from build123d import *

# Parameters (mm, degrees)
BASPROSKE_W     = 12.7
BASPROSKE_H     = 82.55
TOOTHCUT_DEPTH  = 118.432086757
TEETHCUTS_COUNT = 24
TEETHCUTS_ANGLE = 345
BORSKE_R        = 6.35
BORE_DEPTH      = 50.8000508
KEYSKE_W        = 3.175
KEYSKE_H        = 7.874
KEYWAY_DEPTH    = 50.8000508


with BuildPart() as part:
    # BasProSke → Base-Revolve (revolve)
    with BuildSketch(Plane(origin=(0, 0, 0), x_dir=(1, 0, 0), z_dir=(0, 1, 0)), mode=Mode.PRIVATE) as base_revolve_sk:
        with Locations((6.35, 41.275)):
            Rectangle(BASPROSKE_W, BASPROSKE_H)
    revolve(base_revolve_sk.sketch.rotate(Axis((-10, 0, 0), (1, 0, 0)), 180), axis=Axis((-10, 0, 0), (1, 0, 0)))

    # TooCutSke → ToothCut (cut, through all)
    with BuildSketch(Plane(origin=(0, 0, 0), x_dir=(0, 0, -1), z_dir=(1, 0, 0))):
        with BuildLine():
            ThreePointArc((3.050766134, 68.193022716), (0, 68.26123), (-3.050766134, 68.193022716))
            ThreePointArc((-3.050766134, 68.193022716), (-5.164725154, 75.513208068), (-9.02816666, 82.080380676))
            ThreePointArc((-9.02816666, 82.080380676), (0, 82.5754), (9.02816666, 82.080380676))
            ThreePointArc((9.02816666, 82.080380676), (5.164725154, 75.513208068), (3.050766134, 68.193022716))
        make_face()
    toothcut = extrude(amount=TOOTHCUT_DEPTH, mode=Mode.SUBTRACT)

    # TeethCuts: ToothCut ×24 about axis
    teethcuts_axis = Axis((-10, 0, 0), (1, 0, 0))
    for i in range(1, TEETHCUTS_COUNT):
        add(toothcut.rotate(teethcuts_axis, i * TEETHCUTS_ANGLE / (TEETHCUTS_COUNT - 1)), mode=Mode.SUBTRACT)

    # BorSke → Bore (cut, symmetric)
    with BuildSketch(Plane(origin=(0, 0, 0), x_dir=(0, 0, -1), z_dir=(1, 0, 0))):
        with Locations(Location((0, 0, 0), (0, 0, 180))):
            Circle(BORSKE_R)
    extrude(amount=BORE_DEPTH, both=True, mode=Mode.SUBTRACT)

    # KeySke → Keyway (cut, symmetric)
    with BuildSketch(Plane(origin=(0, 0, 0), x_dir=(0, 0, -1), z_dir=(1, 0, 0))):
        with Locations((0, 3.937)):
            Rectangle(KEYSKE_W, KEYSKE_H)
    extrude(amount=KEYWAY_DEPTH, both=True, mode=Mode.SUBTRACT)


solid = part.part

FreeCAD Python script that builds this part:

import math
import FreeCAD as App
import Part
import Sketcher
Q = App.Units.Quantity

doc = App.newDocument("Part")
params = doc.addObject("Spreadsheet::Sheet", "Params")
for row, (alias, value) in enumerate([
    ("sketch1_width", "0.5 in"),
    ("sketch1_height", "3.25 in"),
    ("revolution_angle", "360 deg"),
    ("sketch2_radius", "1.2 in"),
    ("sketch2_radius2", "3.251 in"),
    ("sketch3_diameter", "0.5 in"),
    ("pocket2_length", "101.600102 mm"),
    ("sketch4_width", "0.31 in"),
    ("sketch4_height", "0.125 in"),
    ("pocket3_length", "101.600102 mm"),
], start=1):
    params.set(f"A{row}", alias)
    params.set(f"B{row}", "=" + value)
    params.setAlias(f"B{row}", alias)

body = doc.addObject("PartDesign::Body", "Body")

# Sketch on XZ plane
sketch1 = doc.addObject("Sketcher::SketchObject", "Sketch")
body.addObject(sketch1)
sketch1.AttachmentSupport = (doc.XZ_Plane, [""])
sketch1.MapMode = "FlatFace"
sketch1.addGeometry([
    Part.LineSegment(App.Vector(0, -83, 0), App.Vector(0, 0, 0)),
    Part.LineSegment(App.Vector(0, 0, 0), App.Vector(13, 0, 0)),
    Part.LineSegment(App.Vector(13, 0, 0), App.Vector(13, -83, 0)),
    Part.LineSegment(App.Vector(13, -83, 0), App.Vector(0, -83, 0)),
], False)
sketch1.addConstraint([
    Sketcher.Constraint("Coincident", 0, 2, 1, 1),
    Sketcher.Constraint("Coincident", 1, 2, 2, 1),
    Sketcher.Constraint("Coincident", 2, 2, 3, 1),
    Sketcher.Constraint("Coincident", 3, 2, 0, 1),
    Sketcher.Constraint("Vertical", 0),
    Sketcher.Constraint("Horizontal", 1),
    Sketcher.Constraint("Vertical", 2),
    Sketcher.Constraint("Horizontal", 3),
    Sketcher.Constraint("Coincident", 0, 2, -1, 1),
    Sketcher.Constraint("DistanceX", 1, 1, 1, 2, Q("0.5 in")),
    Sketcher.Constraint("DistanceY", 0, 1, 0, 2, Q("3.25 in")),
])
sketch1.setExpression("Constraints[9]", "Params.sketch1_width")
sketch1.setExpression("Constraints[10]", "Params.sketch1_height")
revolution = doc.addObject("PartDesign::Revolution", "Revolution")
body.addObject(revolution)
revolution.Profile = sketch1
revolution.ReferenceAxis = (sketch1, ["H_Axis"])
revolution.setExpression("Angle", "Params.revolution_angle")

# Sketch on YZ plane
sketch2 = doc.addObject("Sketcher::SketchObject", "Sketch001")
body.addObject(sketch2)
sketch2.AttachmentSupport = (doc.YZ_Plane, [""])
sketch2.MapMode = "FlatFace"
sketch2.addGeometry([
    Part.ArcOfCircle(Part.Circle(App.Vector(0, 0, 0), App.Vector(0, 0, 1), 68), math.radians(-2.56), math.radians(2.56)),
    Part.ArcOfCircle(Part.Circle(App.Vector(63, -33, 0), App.Vector(0, 0, 1), 30), math.radians(52), math.radians(81)),
    Part.ArcOfCircle(Part.Circle(App.Vector(0, 0, 0), App.Vector(0, 0, 1), 83), math.radians(-6.28), math.radians(6.28)),
    Part.ArcOfCircle(Part.Circle(App.Vector(63, 33, 0), App.Vector(0, 0, 1), 30), math.radians(-81), math.radians(-52)),
], False)
sketch2.addConstraint([
    Sketcher.Constraint("Coincident", 0, 1, 1, 2),
    Sketcher.Constraint("Coincident", 1, 1, 2, 1),
    Sketcher.Constraint("Coincident", 2, 2, 3, 2),
    Sketcher.Constraint("Coincident", 3, 1, 0, 2),
    Sketcher.Constraint("Coincident", 0, 3, -1, 1),
    Sketcher.Constraint("Coincident", 2, 3, -1, 1),
    Sketcher.Constraint("Equal", 1, 3),
    Sketcher.Constraint("Symmetric", 1, 3, 3, 3, -1),
    Sketcher.Constraint("Radius", 1, Q("1.2 in")),
    Sketcher.Constraint("Radius", 2, Q("3.251 in")),
    Sketcher.Constraint("Radius", 0, 68.26123),
    Sketcher.Constraint("DistanceY", 1, 1, 0, 1, 5.977401),
    Sketcher.Constraint("DistanceY", 1, 3, -1, 1, 33.16149),
])
sketch2.setExpression("Constraints[8]", "Params.sketch2_radius")
sketch2.setExpression("Constraints[9]", "Params.sketch2_radius2")
pocket1 = doc.addObject("PartDesign::Pocket", "Pocket")
body.addObject(pocket1)
pocket1.Profile = sketch2
pocket1.Type = "ThroughAll"
pocket1.Reversed = True
doc.recompute()

polarpattern = doc.addObject("PartDesign::PolarPattern", "PolarPattern")
body.addObject(polarpattern)
polarpattern.Originals = [pocket1]
polarpattern.Axis = (doc.X_Axis, [""])
polarpattern.Angle = 360
polarpattern.Occurrences = 24
body.Tip = polarpattern

# Sketch on YZ plane
sketch3 = doc.addObject("Sketcher::SketchObject", "Sketch002")
body.addObject(sketch3)
sketch3.AttachmentSupport = (doc.YZ_Plane, [""])
sketch3.MapMode = "FlatFace"
sketch3.addGeometry(Part.Circle(App.Vector(0, 0, 0), App.Vector(0, 0, 1), 6), False)
sketch3.addConstraint([
    Sketcher.Constraint("Coincident", 0, 3, -1, 1),
    Sketcher.Constraint("Diameter", 0, Q("0.5 in")),
])
sketch3.setExpression("Constraints[1]", "Params.sketch3_diameter")
pocket2 = doc.addObject("PartDesign::Pocket", "Pocket001")
body.addObject(pocket2)
pocket2.Profile = sketch3
pocket2.setExpression("Length", "Params.pocket2_length")
pocket2.Midplane = True

# Sketch on YZ plane
sketch4 = doc.addObject("Sketcher::SketchObject", "Sketch003")
body.addObject(sketch4)
sketch4.AttachmentSupport = (doc.YZ_Plane, [""])
sketch4.MapMode = "FlatFace"
sketch4.addGeometry([
    Part.LineSegment(App.Vector(7.9, 1.6, 0), App.Vector(0, 1.6, 0)),
    Part.LineSegment(App.Vector(0, 1.6, 0), App.Vector(0, -1.6, 0)),
    Part.LineSegment(App.Vector(0, -1.6, 0), App.Vector(7.9, -1.6, 0)),
    Part.LineSegment(App.Vector(7.9, -1.6, 0), App.Vector(7.9, 1.6, 0)),
], False)
sketch4.addConstraint([
    Sketcher.Constraint("Coincident", 0, 2, 1, 1),
    Sketcher.Constraint("Coincident", 1, 2, 2, 1),
    Sketcher.Constraint("Coincident", 2, 2, 3, 1),
    Sketcher.Constraint("Coincident", 3, 2, 0, 1),
    Sketcher.Constraint("Horizontal", 0),
    Sketcher.Constraint("Vertical", 1),
    Sketcher.Constraint("Horizontal", 2),
    Sketcher.Constraint("Vertical", 3),
    Sketcher.Constraint("Symmetric", 0, 2, 1, 2, -1, 1),
    Sketcher.Constraint("DistanceX", 0, 2, 0, 1, Q("0.31 in")),
    Sketcher.Constraint("DistanceY", 1, 2, 1, 1, Q("0.125 in")),
])
sketch4.setExpression("Constraints[9]", "Params.sketch4_width")
sketch4.setExpression("Constraints[10]", "Params.sketch4_height")
pocket3 = doc.addObject("PartDesign::Pocket", "Pocket002")
body.addObject(pocket3)
pocket3.Profile = sketch4
pocket3.setExpression("Length", "Params.pocket3_length")
pocket3.Midplane = True

doc.recompute()
